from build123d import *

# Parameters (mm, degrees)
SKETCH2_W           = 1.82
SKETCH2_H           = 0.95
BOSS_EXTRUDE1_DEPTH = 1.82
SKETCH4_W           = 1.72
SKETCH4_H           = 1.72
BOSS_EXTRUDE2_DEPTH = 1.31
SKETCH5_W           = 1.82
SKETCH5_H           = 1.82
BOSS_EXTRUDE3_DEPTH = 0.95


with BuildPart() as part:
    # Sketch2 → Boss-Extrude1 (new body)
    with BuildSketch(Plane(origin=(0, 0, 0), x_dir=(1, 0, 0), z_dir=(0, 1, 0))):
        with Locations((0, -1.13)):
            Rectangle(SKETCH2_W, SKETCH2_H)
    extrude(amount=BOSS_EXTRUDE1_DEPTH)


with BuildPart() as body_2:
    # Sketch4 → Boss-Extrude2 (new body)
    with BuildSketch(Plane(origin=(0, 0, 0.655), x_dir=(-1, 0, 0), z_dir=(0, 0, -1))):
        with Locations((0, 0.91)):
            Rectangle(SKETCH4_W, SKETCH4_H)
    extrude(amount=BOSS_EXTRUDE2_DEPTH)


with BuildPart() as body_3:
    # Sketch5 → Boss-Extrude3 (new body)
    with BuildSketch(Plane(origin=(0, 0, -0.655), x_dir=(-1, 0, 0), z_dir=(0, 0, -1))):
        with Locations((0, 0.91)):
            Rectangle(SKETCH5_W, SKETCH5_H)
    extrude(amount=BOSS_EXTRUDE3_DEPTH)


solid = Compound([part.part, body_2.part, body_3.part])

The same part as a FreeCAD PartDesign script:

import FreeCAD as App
import Part
import Sketcher
Q = App.Units.Quantity


def add_polygon(sketch, points):
    """Adds a closed chain of lines whose ends are joined by coincident constraints."""
    first, n = sketch.GeometryCount, len(points)
    for a, b in zip(points, points[1:] + points[:1]):
        sketch.addGeometry(Part.LineSegment(App.Vector(*a, 0), App.Vector(*b, 0)), False)
    for i in range(n):
        sketch.addConstraint(Sketcher.Constraint("Coincident", first + i, 2, first + (i + 1) % n, 1))

doc = App.newDocument("Part")
body = doc.addObject("PartDesign::Body", "Body")

# Sketch on XZ plane
sketch1 = body.newObject("Sketcher::SketchObject", "Sketch")
sketch1.AttachmentSupport = (doc.getObject("XZ_Plane"), [""])
sketch1.MapMode = "FlatFace"
add_polygon(sketch1, [(-0.9, 0.7), (-0.9, 1.6), (0.9, 1.6), (0.9, 0.7)])  # lines 0-3
sketch1.addConstraint([
    Sketcher.Constraint("Vertical", 0),
    Sketcher.Constraint("Horizontal", 1),
    Sketcher.Constraint("Vertical", 2),
    Sketcher.Constraint("Horizontal", 3),
    Sketcher.Constraint("DistanceX", 1, 1, 1, 2, Q("1.82 mm")),
    Sketcher.Constraint("DistanceY", 0, 1, 0, 2, Q("0.95 mm")),
    Sketcher.Constraint("DistanceX", 0, 2, -1, 1, Q("0.91 mm")),
    Sketcher.Constraint("DistanceY", -1, 1, 0, 2, Q("1.605 mm")),
])
pad1 = body.newObject("PartDesign::Pad", "Pad")
pad1.Profile = sketch1
pad1.Length = 1.82
pad1.Reversed = True
body2 = doc.addObject("PartDesign::Body", "Body001")

# Sketch on XY plane
sketch2 = body2.newObject("Sketcher::SketchObject", "Sketch001")
sketch2.AttachmentSupport = (doc.getObject("XY_Plane001"), [""])
sketch2.MapMode = "FlatFace"
sketch2.AttachmentOffset = App.Placement(App.Vector(0, 0, 0.655), App.Rotation())
add_polygon(sketch2, [(0.9, 1.8), (0.9, 0.1), (-0.9, 0.1), (-0.9, 1.8)])  # lines 0-3
sketch2.addConstraint([
    Sketcher.Constraint("Vertical", 0),
    Sketcher.Constraint("Horizontal", 1),
    Sketcher.Constraint("Vertical", 2),
    Sketcher.Constraint("Horizontal", 3),
    Sketcher.Constraint("Equal", 3, 0),
    Sketcher.Constraint("DistanceX", 1, 2, 1, 1, Q("1.72 mm")),
    Sketcher.Constraint("DistanceX", -1, 1, 0, 2, Q("0.86 mm")),
    Sketcher.Constraint("DistanceY", -1, 1, 0, 2, Q("0.05 mm")),
])
pad2 = body2.newObject("PartDesign::Pad", "Pad001")
pad2.Profile = sketch2
pad2.Length = 1.31
pad2.Reversed = True
body3 = doc.addObject("PartDesign::Body", "Body002")

# Sketch on XY plane
sketch3 = body3.newObject("Sketcher::SketchObject", "Sketch002")
sketch3.AttachmentSupport = (doc.getObject("XY_Plane002"), [""])
sketch3.MapMode = "FlatFace"
sketch3.AttachmentOffset = App.Placement(App.Vector(0, 0, -0.655), App.Rotation())
add_polygon(sketch3, [(0.9, 1.8), (0.9, 0), (-0.9, 0), (-0.9, 1.8)])  # lines 0-3
sketch3.addConstraint([
    Sketcher.Constraint("Vertical", 0),
    Sketcher.Constraint("Horizontal", 1),
    Sketcher.Constraint("Vertical", 2),
    Sketcher.Constraint("Horizontal", 3),
    Sketcher.Constraint("Symmetric", 0, 2, 1, 2, -1, 1),
    Sketcher.Constraint("Equal", 3, 0),
    Sketcher.Constraint("DistanceX", 1, 2, 1, 1, Q("1.82 mm")),
])
pad3 = body3.newObject("PartDesign::Pad", "Pad002")
pad3.Profile = sketch3
pad3.Length = 0.95
pad3.Reversed = True

doc.recompute()
